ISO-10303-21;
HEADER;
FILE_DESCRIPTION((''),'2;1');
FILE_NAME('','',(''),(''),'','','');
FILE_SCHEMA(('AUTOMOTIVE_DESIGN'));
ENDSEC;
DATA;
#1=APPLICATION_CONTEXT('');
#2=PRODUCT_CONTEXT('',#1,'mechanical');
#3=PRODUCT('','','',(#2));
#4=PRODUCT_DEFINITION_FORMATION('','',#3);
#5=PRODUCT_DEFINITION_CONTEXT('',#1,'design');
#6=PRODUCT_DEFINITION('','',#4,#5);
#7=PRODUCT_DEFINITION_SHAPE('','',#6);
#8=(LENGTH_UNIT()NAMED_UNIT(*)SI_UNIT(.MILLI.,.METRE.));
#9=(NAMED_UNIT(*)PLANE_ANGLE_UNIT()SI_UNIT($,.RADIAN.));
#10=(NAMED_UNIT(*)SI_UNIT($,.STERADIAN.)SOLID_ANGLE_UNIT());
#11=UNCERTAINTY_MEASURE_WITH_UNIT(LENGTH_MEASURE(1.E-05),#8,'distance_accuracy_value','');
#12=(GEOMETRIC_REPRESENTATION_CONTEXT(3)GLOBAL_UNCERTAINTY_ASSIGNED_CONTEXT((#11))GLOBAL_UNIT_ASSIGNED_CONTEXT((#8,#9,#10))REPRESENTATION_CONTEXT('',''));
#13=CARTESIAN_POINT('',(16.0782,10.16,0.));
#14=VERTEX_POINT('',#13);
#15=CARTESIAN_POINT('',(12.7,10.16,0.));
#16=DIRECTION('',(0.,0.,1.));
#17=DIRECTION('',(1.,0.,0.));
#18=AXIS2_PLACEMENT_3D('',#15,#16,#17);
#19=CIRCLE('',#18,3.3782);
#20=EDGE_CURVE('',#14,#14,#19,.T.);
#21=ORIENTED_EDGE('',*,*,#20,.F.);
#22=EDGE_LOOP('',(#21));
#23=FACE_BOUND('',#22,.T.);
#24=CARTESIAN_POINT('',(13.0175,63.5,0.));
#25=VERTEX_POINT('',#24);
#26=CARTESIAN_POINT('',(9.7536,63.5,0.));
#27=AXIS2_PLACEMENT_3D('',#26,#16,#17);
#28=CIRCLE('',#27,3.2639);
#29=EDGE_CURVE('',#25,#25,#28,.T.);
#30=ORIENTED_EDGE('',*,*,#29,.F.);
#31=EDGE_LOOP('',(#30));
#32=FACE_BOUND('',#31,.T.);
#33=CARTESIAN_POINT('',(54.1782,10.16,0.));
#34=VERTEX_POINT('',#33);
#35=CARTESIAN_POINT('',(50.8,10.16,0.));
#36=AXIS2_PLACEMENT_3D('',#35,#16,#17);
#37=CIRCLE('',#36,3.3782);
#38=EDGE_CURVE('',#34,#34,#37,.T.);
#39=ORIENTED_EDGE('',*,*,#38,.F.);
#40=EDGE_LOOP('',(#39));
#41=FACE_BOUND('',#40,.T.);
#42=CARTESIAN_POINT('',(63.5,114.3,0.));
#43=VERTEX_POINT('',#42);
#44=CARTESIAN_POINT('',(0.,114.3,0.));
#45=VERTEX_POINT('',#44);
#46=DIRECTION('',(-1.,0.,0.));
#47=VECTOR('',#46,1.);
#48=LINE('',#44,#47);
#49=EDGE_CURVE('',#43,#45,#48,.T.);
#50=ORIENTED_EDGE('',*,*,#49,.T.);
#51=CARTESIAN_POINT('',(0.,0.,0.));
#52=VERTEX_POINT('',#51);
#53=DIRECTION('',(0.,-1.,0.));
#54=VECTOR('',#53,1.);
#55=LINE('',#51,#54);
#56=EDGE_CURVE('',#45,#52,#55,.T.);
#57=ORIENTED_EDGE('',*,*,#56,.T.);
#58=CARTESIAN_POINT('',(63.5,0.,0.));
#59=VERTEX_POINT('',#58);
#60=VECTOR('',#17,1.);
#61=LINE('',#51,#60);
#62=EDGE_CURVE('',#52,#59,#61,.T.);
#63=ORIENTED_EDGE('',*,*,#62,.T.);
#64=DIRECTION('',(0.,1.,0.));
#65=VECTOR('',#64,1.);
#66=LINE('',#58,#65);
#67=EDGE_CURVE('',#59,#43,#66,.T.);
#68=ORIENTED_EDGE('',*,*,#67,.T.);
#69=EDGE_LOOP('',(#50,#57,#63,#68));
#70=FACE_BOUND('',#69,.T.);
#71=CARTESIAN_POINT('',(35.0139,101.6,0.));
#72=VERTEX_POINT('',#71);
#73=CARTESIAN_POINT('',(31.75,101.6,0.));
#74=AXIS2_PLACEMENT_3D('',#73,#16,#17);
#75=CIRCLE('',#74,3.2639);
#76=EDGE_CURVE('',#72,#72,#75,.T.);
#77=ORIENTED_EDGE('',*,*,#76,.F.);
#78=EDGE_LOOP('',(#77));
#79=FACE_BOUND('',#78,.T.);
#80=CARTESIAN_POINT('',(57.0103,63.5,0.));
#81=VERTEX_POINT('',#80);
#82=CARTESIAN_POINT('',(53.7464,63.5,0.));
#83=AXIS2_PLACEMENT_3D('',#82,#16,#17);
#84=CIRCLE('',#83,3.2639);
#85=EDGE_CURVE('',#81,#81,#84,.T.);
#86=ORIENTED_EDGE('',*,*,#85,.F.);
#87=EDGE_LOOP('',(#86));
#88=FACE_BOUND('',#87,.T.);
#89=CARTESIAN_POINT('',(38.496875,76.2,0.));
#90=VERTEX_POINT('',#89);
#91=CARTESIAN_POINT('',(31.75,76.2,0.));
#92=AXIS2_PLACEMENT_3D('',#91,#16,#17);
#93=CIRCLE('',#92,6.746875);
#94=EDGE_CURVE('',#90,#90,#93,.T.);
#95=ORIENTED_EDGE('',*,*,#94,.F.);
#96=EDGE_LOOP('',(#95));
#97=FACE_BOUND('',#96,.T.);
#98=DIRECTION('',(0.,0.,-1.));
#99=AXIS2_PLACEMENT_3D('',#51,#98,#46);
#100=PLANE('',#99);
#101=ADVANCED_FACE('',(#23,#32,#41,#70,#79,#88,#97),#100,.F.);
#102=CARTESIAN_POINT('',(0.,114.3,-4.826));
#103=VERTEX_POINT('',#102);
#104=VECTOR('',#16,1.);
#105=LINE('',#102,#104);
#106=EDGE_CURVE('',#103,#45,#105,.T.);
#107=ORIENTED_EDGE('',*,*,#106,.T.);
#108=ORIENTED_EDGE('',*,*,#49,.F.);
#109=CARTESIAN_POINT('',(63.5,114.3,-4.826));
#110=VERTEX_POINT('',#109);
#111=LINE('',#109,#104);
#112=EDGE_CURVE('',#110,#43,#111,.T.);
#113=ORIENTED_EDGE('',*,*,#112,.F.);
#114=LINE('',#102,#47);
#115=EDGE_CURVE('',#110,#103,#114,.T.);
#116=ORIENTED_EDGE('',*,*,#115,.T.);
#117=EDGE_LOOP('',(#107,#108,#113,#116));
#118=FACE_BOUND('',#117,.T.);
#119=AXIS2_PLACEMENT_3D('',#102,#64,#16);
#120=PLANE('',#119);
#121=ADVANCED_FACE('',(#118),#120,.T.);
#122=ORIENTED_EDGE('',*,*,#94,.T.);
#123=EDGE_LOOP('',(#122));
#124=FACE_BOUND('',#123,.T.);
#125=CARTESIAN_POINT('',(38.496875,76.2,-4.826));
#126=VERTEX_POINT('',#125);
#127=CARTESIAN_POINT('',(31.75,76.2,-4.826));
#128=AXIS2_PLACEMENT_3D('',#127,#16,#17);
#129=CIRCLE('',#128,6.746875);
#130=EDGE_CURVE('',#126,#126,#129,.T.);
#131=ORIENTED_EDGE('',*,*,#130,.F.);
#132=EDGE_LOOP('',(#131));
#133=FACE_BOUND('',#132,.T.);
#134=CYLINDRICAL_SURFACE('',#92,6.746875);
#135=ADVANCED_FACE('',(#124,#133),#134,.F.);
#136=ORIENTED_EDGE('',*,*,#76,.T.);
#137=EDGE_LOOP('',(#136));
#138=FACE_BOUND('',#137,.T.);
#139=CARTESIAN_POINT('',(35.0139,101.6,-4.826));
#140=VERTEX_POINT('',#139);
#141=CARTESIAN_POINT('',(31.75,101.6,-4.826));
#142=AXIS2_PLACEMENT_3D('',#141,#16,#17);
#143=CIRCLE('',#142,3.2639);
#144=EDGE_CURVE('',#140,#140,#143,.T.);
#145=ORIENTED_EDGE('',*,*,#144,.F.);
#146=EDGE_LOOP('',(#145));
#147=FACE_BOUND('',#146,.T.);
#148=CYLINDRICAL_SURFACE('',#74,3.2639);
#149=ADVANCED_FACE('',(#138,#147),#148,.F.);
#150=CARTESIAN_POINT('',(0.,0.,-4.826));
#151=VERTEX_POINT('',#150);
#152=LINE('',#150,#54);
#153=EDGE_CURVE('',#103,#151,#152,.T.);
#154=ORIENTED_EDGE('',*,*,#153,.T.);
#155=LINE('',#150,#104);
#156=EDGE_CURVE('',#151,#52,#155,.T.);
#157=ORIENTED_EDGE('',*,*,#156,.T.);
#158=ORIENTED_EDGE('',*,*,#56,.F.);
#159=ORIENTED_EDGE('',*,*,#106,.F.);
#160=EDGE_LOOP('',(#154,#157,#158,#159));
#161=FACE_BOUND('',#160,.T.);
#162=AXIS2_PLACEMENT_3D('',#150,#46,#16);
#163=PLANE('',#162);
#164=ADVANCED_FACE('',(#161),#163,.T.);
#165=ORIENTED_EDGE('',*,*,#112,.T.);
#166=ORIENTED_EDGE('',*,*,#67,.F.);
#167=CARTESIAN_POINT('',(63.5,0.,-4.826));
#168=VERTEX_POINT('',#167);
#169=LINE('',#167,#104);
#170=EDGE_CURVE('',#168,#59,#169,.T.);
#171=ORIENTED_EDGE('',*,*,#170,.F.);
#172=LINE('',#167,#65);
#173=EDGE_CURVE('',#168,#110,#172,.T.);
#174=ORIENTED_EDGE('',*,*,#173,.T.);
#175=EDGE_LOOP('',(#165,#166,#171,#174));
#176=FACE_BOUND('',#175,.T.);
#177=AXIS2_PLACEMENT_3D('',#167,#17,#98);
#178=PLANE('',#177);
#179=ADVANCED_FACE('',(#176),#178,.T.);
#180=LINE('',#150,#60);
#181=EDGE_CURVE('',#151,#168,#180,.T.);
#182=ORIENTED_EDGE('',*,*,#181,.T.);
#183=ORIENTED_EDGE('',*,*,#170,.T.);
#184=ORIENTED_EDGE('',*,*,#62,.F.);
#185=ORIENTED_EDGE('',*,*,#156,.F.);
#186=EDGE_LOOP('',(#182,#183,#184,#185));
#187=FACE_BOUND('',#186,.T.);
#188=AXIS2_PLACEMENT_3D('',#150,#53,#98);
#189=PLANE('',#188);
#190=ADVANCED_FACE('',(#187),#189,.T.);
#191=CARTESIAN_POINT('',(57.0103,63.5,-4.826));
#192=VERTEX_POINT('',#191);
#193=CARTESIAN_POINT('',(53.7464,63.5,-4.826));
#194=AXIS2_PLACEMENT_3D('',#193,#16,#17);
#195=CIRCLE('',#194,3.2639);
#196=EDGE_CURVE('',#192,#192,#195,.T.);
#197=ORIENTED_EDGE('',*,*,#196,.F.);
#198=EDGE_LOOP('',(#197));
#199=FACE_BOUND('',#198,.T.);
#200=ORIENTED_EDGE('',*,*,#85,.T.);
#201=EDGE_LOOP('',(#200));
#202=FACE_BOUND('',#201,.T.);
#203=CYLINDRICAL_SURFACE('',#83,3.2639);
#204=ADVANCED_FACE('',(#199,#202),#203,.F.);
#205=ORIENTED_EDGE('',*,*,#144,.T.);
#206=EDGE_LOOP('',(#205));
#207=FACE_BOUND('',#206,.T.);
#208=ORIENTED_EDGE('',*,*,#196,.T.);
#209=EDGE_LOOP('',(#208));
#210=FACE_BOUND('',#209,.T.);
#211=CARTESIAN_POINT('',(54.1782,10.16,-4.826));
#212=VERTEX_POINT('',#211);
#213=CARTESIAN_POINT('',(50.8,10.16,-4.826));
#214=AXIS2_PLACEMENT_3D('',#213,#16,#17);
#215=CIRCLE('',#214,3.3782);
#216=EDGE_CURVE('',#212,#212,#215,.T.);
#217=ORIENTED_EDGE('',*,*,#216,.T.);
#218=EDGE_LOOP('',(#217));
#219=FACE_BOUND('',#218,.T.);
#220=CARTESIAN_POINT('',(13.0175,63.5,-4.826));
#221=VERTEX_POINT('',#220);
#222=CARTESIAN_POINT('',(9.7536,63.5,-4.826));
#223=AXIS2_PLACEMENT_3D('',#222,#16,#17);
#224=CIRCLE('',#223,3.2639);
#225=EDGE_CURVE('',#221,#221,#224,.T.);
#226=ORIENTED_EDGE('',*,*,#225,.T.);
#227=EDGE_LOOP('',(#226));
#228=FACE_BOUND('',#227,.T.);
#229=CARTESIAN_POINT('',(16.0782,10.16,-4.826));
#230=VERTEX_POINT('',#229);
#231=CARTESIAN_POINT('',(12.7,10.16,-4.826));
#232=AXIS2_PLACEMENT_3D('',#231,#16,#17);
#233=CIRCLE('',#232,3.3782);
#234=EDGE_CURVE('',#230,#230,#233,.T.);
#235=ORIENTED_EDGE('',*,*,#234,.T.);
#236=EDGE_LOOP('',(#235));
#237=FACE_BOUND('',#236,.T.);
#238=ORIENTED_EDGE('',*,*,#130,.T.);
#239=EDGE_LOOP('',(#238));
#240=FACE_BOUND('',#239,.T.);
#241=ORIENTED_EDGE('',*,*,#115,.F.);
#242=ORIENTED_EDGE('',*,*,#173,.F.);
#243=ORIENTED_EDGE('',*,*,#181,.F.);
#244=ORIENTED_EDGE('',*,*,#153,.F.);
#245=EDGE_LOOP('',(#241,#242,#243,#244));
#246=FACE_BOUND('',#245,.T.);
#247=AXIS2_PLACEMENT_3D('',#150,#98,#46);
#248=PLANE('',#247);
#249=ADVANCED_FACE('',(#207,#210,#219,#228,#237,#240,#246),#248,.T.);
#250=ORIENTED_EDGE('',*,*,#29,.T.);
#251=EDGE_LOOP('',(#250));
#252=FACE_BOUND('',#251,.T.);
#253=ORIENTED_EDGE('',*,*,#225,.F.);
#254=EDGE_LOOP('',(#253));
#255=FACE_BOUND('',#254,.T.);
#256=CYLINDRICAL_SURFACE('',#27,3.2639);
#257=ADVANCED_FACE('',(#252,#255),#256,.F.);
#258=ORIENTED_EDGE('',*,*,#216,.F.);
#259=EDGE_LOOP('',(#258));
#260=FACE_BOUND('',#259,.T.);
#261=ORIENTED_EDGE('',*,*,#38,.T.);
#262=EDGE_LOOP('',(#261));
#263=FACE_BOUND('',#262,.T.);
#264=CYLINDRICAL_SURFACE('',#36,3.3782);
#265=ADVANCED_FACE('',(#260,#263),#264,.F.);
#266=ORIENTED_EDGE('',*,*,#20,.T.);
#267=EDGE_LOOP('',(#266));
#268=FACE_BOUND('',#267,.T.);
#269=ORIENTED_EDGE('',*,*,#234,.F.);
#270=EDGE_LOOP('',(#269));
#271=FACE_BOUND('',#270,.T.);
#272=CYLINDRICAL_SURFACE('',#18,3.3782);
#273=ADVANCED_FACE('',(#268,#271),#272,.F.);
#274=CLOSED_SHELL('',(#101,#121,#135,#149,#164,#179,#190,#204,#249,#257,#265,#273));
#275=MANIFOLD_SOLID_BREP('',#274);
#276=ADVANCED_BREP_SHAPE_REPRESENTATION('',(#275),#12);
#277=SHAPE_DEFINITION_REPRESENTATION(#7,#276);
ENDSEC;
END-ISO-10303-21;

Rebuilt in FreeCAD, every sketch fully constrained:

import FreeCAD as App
import Part
import Sketcher
Q = App.Units.Quantity

doc = App.newDocument("Part")
params = doc.addObject("Spreadsheet::Sheet", "Params")
for row, (alias, value) in enumerate([
    ("sketch1_width", "2.5 in"),
    ("sketch1_height", "4.5 in"),
    ("pad1_length", "0.19 in"),
    ("sketch2_diameter", "0.266 in"),
    ("hole_diameter", "0.266 in"),
    ("sketch3_diameter", "0.257 in"),
    ("hole2_diameter", "0.257 in"),
    ("sketch4_diameter", "0.53125 in"),
    ("hole3_diameter", "0.53125 in"),
], start=1):
    params.set(f"A{row}", alias)
    params.set(f"B{row}", "=" + value)
    params.setAlias(f"B{row}", alias)

body = doc.addObject("PartDesign::Body", "Body")

sketch1 = doc.addObject("Sketcher::SketchObject", "Sketch")
body.addObject(sketch1)
sketch1.AttachmentSupport = (doc.XY_Plane, [""])
sketch1.MapMode = "FlatFace"
sketch1.addGeometry([
    Part.LineSegment(App.Vector(0, 114.3, 0), App.Vector(0, 0, 0)),
    Part.LineSegment(App.Vector(0, 0, 0), App.Vector(63.5, 0, 0)),
    Part.LineSegment(App.Vector(63.5, 0, 0), App.Vector(63.5, 114.3, 0)),
    Part.LineSegment(App.Vector(63.5, 114.3, 0), App.Vector(0, 114.3, 0)),
], False)
sketch1.addConstraint([
    Sketcher.Constraint("Coincident", 0, 2, 1, 1),
    Sketcher.Constraint("Coincident", 1, 2, 2, 1),
    Sketcher.Constraint("Coincident", 2, 2, 3, 1),
    Sketcher.Constraint("Coincident", 3, 2, 0, 1),
    Sketcher.Constraint("Vertical", 0),
    Sketcher.Constraint("Horizontal", 1),
    Sketcher.Constraint("Vertical", 2),
    Sketcher.Constraint("Horizontal", 3),
    Sketcher.Constraint("Coincident", 0, 2, -1, 1),
    Sketcher.Constraint("DistanceX", 1, 1, 1, 2, Q("2.5 in")),
    Sketcher.Constraint("DistanceY", 0, 2, 0, 1, Q("4.5 in")),
])
sketch1.setExpression("Constraints[9]", "Params.sketch1_width")
sketch1.setExpression("Constraints[10]", "Params.sketch1_height")
pad1 = doc.addObject("PartDesign::Pad", "Pad")
body.addObject(pad1)
pad1.Profile = sketch1
pad1.setExpression("Length", "Params.pad1_length")
pad1.Reversed = True

sketch2 = doc.addObject("Sketcher::SketchObject", "Sketch001")
body.addObject(sketch2)
sketch2.AttachmentSupport = (doc.XY_Plane, [""])
sketch2.MapMode = "FlatFace"
sketch2.addGeometry([
    Part.Circle(App.Vector(12.7, 10.16, 0), App.Vector(0, 0, 1), 3.3782),
    Part.Circle(App.Vector(50.8, 10.16, 0), App.Vector(0, 0, 1), 3.3782),
], False)
sketch2.addConstraint([
    Sketcher.Constraint("Equal", 0, 1),
    Sketcher.Constraint("Horizontal", 0, 3, 1, 3),
    Sketcher.Constraint("Diameter", 0, Q("0.266 in")),
    Sketcher.Constraint("DistanceX", -1, 1, 1, 3, Q("2 in")),
    Sketcher.Constraint("DistanceX", -1, 1, 0, 3, Q("0.5 in")),
    Sketcher.Constraint("DistanceY", -1, 1, 0, 3, Q("0.4 in")),
])
sketch2.setExpression("Constraints[2]", "Params.sketch2_diameter")
doc.recompute()
hole = doc.addObject("PartDesign::Hole", "Hole")
body.addObject(hole)
hole.Profile = sketch2
hole.ThreadType = "None"
hole.setExpression("Diameter", "Params.hole_diameter")
hole.DepthType = "ThroughAll"

sketch3 = doc.addObject("Sketcher::SketchObject", "Sketch002")
body.addObject(sketch3)
sketch3.AttachmentSupport = (doc.XY_Plane, [""])
sketch3.MapMode = "FlatFace"
sketch3.addGeometry([
    Part.Circle(App.Vector(31.75, 101.6, 0), App.Vector(0, 0, 1), 3.2639),
    Part.Circle(App.Vector(9.7536, 63.5, 0), App.Vector(0, 0, 1), 3.2639),
    Part.Circle(App.Vector(53.7464, 63.5, 0), App.Vector(0, 0, 1), 3.2639),
], False)
sketch3.addConstraint([
    Sketcher.Constraint("Equal", 0, 1),
    Sketcher.Constraint("Equal", 1, 2),
    Sketcher.Constraint("Horizontal", 1, 3, 2, 3),
    Sketcher.Constraint("Diameter", 0, Q("0.257 in")),
    Sketcher.Constraint("DistanceY", -1, 1, 0, 3, Q("4 in")),
    Sketcher.Constraint("DistanceY", -1, 1, 1, 3, Q("2.5 in")),
    Sketcher.Constraint("DistanceX", -1, 1, 0, 3, Q("1.25 in")),
    Sketcher.Constraint("DistanceX", -1, 1, 1, 3, Q("0.384 in")),
    Sketcher.Constraint("DistanceX", -1, 1, 2, 3, Q("2.116 in")),
])
sketch3.setExpression("Constraints[3]", "Params.sketch3_diameter")
doc.recompute()
hole2 = doc.addObject("PartDesign::Hole", "Hole001")
body.addObject(hole2)
hole2.Profile = sketch3
hole2.ThreadType = "None"
hole2.setExpression("Diameter", "Params.hole2_diameter")
hole2.DepthType = "ThroughAll"

sketch4 = doc.addObject("Sketcher::SketchObject", "Sketch003")
body.addObject(sketch4)
sketch4.AttachmentSupport = (doc.XY_Plane, [""])
sketch4.MapMode = "FlatFace"
sketch4.addGeometry(Part.Circle(App.Vector(31.75, 76.2, 0), App.Vector(0, 0, 1), 6.746875), False)
sketch4.addConstraint([
    Sketcher.Constraint("Diameter", 0, Q("0.53125 in")),
    Sketcher.Constraint("DistanceY", -1, 1, 0, 3, Q("3 in")),
    Sketcher.Constraint("DistanceX", -1, 1, 0, 3, Q("1.25 in")),
])
sketch4.setExpression("Constraints[0]", "Params.sketch4_diameter")
doc.recompute()
hole3 = doc.addObject("PartDesign::Hole", "Hole002")
body.addObject(hole3)
hole3.Profile = sketch4
hole3.ThreadType = "None"
hole3.setExpression("Diameter", "Params.hole3_diameter")
hole3.DepthType = "ThroughAll"

doc.recompute()
